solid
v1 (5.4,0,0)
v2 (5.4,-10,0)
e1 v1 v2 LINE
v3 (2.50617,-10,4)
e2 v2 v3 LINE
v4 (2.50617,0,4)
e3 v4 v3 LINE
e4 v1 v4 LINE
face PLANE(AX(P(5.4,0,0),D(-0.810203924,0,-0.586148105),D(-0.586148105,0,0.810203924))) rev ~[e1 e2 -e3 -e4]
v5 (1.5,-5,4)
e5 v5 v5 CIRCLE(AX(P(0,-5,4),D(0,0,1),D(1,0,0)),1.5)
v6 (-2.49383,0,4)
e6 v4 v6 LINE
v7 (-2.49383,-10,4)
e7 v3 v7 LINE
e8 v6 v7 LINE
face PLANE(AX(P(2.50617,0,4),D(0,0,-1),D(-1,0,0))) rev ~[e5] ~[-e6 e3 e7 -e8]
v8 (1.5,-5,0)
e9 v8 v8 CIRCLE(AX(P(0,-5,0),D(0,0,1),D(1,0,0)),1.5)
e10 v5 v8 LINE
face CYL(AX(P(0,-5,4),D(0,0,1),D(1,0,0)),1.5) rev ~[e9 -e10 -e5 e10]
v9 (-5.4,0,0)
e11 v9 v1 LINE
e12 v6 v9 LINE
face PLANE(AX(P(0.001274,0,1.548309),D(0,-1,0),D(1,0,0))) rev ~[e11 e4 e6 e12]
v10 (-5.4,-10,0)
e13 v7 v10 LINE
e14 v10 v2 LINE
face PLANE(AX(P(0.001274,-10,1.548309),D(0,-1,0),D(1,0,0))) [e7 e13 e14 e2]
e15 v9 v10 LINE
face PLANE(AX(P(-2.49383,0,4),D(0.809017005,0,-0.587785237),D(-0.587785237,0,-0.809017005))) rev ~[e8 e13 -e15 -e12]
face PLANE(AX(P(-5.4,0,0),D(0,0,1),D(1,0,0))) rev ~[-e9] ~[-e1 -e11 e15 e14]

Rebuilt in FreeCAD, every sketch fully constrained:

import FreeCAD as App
import Part
import Sketcher
Q = App.Units.Quantity

doc = App.newDocument("Part")
params = doc.addObject("Spreadsheet::Sheet", "Params")
for row, (alias, value) in enumerate([
    ("sketch1_width", "5 mm"),
    ("sketch1_width2", "10.8 mm"),
    ("pad1_length", "10 mm"),
    ("sketch2_diameter", "3 mm"),
    ("pocket1_length", "5 mm"),
], start=1):
    params.set(f"A{row}", alias)
    params.set(f"B{row}", "=" + value)
    params.setAlias(f"B{row}", alias)

body = doc.addObject("PartDesign::Body", "Body")

# Sketch on XZ plane
sketch1 = body.newObject("Sketcher::SketchObject", "Sketch")
sketch1.AttachmentSupport = (doc.getObject("XZ_Plane"), [""])
sketch1.MapMode = "FlatFace"
sketch1.addGeometry(Part.LineSegment(App.Vector(-2.49383, 4, 0), App.Vector(-5.4, 0, 0)), False)
sketch1.addGeometry(Part.LineSegment(App.Vector(-5.4, 0, 0), App.Vector(5.4, 0, 0)), False)
sketch1.addGeometry(Part.LineSegment(App.Vector(5.4, 0, 0), App.Vector(2.50617, 4, 0)), False)
sketch1.addGeometry(Part.LineSegment(App.Vector(2.50617, 4, 0), App.Vector(-2.49383, 4, 0)), False)
sketch1.addConstraint(Sketcher.Constraint("Coincident", 0, 2, 1, 1))
sketch1.addConstraint(Sketcher.Constraint("Coincident", 1, 2, 2, 1))
sketch1.addConstraint(Sketcher.Constraint("Coincident", 2, 2, 3, 1))
sketch1.addConstraint(Sketcher.Constraint("Coincident", 3, 2, 0, 1))
sketch1.addConstraint(Sketcher.Constraint("Horizontal", 1))
sketch1.addConstraint(Sketcher.Constraint("Horizontal", 3))
sketch1.addConstraint(Sketcher.Constraint("Symmetric", 0, 2, 1, 2, -1, 1))
sketch1.addConstraint(Sketcher.Constraint("DistanceX", 3, 2, 3, 1, 5.0))
sketch1.addConstraint(Sketcher.Constraint("Angle", 0, Q("-125.999999 deg")))
sketch1.addConstraint(Sketcher.Constraint("DistanceX", 1, 1, 1, 2, 10.8))
sketch1.addConstraint(Sketcher.Constraint("DistanceY", -1, 1, 2, 2, 4.0))
sketch1.setExpression("Constraints[7]", "Params.sketch1_width")
sketch1.setExpression("Constraints[9]", "Params.sketch1_width2")
pad1 = body.newObject("PartDesign::Pad", "Pad")
pad1.Profile = sketch1
pad1.setExpression("Length", "Params.pad1_length")

# Sketch on XY plane
sketch2 = body.newObject("Sketcher::SketchObject", "Sketch001")
sketch2.AttachmentSupport = (doc.getObject("XY_Plane"), [""])
sketch2.MapMode = "FlatFace"
sketch2.AttachmentOffset = App.Placement(App.Vector(0, 0, 4), App.Rotation())
sketch2.addGeometry(Part.Circle(App.Vector(0, -5, 0), App.Vector(0, 0, 1), 1.5), False)
sketch2.addConstraint(Sketcher.Constraint("PointOnObject", 0, 3, -2))
sketch2.addConstraint(Sketcher.Constraint("Diameter", 0, 3.0))
sketch2.addConstraint(Sketcher.Constraint("DistanceY", 0, 3, -1, 1, 5.0))
sketch2.setExpression("Constraints[1]", "Params.sketch2_diameter")
pocket1 = body.newObject("PartDesign::Pocket", "Pocket")
pocket1.Profile = sketch2
pocket1.setExpression("Length", "Params.pocket1_length")

doc.recompute()
